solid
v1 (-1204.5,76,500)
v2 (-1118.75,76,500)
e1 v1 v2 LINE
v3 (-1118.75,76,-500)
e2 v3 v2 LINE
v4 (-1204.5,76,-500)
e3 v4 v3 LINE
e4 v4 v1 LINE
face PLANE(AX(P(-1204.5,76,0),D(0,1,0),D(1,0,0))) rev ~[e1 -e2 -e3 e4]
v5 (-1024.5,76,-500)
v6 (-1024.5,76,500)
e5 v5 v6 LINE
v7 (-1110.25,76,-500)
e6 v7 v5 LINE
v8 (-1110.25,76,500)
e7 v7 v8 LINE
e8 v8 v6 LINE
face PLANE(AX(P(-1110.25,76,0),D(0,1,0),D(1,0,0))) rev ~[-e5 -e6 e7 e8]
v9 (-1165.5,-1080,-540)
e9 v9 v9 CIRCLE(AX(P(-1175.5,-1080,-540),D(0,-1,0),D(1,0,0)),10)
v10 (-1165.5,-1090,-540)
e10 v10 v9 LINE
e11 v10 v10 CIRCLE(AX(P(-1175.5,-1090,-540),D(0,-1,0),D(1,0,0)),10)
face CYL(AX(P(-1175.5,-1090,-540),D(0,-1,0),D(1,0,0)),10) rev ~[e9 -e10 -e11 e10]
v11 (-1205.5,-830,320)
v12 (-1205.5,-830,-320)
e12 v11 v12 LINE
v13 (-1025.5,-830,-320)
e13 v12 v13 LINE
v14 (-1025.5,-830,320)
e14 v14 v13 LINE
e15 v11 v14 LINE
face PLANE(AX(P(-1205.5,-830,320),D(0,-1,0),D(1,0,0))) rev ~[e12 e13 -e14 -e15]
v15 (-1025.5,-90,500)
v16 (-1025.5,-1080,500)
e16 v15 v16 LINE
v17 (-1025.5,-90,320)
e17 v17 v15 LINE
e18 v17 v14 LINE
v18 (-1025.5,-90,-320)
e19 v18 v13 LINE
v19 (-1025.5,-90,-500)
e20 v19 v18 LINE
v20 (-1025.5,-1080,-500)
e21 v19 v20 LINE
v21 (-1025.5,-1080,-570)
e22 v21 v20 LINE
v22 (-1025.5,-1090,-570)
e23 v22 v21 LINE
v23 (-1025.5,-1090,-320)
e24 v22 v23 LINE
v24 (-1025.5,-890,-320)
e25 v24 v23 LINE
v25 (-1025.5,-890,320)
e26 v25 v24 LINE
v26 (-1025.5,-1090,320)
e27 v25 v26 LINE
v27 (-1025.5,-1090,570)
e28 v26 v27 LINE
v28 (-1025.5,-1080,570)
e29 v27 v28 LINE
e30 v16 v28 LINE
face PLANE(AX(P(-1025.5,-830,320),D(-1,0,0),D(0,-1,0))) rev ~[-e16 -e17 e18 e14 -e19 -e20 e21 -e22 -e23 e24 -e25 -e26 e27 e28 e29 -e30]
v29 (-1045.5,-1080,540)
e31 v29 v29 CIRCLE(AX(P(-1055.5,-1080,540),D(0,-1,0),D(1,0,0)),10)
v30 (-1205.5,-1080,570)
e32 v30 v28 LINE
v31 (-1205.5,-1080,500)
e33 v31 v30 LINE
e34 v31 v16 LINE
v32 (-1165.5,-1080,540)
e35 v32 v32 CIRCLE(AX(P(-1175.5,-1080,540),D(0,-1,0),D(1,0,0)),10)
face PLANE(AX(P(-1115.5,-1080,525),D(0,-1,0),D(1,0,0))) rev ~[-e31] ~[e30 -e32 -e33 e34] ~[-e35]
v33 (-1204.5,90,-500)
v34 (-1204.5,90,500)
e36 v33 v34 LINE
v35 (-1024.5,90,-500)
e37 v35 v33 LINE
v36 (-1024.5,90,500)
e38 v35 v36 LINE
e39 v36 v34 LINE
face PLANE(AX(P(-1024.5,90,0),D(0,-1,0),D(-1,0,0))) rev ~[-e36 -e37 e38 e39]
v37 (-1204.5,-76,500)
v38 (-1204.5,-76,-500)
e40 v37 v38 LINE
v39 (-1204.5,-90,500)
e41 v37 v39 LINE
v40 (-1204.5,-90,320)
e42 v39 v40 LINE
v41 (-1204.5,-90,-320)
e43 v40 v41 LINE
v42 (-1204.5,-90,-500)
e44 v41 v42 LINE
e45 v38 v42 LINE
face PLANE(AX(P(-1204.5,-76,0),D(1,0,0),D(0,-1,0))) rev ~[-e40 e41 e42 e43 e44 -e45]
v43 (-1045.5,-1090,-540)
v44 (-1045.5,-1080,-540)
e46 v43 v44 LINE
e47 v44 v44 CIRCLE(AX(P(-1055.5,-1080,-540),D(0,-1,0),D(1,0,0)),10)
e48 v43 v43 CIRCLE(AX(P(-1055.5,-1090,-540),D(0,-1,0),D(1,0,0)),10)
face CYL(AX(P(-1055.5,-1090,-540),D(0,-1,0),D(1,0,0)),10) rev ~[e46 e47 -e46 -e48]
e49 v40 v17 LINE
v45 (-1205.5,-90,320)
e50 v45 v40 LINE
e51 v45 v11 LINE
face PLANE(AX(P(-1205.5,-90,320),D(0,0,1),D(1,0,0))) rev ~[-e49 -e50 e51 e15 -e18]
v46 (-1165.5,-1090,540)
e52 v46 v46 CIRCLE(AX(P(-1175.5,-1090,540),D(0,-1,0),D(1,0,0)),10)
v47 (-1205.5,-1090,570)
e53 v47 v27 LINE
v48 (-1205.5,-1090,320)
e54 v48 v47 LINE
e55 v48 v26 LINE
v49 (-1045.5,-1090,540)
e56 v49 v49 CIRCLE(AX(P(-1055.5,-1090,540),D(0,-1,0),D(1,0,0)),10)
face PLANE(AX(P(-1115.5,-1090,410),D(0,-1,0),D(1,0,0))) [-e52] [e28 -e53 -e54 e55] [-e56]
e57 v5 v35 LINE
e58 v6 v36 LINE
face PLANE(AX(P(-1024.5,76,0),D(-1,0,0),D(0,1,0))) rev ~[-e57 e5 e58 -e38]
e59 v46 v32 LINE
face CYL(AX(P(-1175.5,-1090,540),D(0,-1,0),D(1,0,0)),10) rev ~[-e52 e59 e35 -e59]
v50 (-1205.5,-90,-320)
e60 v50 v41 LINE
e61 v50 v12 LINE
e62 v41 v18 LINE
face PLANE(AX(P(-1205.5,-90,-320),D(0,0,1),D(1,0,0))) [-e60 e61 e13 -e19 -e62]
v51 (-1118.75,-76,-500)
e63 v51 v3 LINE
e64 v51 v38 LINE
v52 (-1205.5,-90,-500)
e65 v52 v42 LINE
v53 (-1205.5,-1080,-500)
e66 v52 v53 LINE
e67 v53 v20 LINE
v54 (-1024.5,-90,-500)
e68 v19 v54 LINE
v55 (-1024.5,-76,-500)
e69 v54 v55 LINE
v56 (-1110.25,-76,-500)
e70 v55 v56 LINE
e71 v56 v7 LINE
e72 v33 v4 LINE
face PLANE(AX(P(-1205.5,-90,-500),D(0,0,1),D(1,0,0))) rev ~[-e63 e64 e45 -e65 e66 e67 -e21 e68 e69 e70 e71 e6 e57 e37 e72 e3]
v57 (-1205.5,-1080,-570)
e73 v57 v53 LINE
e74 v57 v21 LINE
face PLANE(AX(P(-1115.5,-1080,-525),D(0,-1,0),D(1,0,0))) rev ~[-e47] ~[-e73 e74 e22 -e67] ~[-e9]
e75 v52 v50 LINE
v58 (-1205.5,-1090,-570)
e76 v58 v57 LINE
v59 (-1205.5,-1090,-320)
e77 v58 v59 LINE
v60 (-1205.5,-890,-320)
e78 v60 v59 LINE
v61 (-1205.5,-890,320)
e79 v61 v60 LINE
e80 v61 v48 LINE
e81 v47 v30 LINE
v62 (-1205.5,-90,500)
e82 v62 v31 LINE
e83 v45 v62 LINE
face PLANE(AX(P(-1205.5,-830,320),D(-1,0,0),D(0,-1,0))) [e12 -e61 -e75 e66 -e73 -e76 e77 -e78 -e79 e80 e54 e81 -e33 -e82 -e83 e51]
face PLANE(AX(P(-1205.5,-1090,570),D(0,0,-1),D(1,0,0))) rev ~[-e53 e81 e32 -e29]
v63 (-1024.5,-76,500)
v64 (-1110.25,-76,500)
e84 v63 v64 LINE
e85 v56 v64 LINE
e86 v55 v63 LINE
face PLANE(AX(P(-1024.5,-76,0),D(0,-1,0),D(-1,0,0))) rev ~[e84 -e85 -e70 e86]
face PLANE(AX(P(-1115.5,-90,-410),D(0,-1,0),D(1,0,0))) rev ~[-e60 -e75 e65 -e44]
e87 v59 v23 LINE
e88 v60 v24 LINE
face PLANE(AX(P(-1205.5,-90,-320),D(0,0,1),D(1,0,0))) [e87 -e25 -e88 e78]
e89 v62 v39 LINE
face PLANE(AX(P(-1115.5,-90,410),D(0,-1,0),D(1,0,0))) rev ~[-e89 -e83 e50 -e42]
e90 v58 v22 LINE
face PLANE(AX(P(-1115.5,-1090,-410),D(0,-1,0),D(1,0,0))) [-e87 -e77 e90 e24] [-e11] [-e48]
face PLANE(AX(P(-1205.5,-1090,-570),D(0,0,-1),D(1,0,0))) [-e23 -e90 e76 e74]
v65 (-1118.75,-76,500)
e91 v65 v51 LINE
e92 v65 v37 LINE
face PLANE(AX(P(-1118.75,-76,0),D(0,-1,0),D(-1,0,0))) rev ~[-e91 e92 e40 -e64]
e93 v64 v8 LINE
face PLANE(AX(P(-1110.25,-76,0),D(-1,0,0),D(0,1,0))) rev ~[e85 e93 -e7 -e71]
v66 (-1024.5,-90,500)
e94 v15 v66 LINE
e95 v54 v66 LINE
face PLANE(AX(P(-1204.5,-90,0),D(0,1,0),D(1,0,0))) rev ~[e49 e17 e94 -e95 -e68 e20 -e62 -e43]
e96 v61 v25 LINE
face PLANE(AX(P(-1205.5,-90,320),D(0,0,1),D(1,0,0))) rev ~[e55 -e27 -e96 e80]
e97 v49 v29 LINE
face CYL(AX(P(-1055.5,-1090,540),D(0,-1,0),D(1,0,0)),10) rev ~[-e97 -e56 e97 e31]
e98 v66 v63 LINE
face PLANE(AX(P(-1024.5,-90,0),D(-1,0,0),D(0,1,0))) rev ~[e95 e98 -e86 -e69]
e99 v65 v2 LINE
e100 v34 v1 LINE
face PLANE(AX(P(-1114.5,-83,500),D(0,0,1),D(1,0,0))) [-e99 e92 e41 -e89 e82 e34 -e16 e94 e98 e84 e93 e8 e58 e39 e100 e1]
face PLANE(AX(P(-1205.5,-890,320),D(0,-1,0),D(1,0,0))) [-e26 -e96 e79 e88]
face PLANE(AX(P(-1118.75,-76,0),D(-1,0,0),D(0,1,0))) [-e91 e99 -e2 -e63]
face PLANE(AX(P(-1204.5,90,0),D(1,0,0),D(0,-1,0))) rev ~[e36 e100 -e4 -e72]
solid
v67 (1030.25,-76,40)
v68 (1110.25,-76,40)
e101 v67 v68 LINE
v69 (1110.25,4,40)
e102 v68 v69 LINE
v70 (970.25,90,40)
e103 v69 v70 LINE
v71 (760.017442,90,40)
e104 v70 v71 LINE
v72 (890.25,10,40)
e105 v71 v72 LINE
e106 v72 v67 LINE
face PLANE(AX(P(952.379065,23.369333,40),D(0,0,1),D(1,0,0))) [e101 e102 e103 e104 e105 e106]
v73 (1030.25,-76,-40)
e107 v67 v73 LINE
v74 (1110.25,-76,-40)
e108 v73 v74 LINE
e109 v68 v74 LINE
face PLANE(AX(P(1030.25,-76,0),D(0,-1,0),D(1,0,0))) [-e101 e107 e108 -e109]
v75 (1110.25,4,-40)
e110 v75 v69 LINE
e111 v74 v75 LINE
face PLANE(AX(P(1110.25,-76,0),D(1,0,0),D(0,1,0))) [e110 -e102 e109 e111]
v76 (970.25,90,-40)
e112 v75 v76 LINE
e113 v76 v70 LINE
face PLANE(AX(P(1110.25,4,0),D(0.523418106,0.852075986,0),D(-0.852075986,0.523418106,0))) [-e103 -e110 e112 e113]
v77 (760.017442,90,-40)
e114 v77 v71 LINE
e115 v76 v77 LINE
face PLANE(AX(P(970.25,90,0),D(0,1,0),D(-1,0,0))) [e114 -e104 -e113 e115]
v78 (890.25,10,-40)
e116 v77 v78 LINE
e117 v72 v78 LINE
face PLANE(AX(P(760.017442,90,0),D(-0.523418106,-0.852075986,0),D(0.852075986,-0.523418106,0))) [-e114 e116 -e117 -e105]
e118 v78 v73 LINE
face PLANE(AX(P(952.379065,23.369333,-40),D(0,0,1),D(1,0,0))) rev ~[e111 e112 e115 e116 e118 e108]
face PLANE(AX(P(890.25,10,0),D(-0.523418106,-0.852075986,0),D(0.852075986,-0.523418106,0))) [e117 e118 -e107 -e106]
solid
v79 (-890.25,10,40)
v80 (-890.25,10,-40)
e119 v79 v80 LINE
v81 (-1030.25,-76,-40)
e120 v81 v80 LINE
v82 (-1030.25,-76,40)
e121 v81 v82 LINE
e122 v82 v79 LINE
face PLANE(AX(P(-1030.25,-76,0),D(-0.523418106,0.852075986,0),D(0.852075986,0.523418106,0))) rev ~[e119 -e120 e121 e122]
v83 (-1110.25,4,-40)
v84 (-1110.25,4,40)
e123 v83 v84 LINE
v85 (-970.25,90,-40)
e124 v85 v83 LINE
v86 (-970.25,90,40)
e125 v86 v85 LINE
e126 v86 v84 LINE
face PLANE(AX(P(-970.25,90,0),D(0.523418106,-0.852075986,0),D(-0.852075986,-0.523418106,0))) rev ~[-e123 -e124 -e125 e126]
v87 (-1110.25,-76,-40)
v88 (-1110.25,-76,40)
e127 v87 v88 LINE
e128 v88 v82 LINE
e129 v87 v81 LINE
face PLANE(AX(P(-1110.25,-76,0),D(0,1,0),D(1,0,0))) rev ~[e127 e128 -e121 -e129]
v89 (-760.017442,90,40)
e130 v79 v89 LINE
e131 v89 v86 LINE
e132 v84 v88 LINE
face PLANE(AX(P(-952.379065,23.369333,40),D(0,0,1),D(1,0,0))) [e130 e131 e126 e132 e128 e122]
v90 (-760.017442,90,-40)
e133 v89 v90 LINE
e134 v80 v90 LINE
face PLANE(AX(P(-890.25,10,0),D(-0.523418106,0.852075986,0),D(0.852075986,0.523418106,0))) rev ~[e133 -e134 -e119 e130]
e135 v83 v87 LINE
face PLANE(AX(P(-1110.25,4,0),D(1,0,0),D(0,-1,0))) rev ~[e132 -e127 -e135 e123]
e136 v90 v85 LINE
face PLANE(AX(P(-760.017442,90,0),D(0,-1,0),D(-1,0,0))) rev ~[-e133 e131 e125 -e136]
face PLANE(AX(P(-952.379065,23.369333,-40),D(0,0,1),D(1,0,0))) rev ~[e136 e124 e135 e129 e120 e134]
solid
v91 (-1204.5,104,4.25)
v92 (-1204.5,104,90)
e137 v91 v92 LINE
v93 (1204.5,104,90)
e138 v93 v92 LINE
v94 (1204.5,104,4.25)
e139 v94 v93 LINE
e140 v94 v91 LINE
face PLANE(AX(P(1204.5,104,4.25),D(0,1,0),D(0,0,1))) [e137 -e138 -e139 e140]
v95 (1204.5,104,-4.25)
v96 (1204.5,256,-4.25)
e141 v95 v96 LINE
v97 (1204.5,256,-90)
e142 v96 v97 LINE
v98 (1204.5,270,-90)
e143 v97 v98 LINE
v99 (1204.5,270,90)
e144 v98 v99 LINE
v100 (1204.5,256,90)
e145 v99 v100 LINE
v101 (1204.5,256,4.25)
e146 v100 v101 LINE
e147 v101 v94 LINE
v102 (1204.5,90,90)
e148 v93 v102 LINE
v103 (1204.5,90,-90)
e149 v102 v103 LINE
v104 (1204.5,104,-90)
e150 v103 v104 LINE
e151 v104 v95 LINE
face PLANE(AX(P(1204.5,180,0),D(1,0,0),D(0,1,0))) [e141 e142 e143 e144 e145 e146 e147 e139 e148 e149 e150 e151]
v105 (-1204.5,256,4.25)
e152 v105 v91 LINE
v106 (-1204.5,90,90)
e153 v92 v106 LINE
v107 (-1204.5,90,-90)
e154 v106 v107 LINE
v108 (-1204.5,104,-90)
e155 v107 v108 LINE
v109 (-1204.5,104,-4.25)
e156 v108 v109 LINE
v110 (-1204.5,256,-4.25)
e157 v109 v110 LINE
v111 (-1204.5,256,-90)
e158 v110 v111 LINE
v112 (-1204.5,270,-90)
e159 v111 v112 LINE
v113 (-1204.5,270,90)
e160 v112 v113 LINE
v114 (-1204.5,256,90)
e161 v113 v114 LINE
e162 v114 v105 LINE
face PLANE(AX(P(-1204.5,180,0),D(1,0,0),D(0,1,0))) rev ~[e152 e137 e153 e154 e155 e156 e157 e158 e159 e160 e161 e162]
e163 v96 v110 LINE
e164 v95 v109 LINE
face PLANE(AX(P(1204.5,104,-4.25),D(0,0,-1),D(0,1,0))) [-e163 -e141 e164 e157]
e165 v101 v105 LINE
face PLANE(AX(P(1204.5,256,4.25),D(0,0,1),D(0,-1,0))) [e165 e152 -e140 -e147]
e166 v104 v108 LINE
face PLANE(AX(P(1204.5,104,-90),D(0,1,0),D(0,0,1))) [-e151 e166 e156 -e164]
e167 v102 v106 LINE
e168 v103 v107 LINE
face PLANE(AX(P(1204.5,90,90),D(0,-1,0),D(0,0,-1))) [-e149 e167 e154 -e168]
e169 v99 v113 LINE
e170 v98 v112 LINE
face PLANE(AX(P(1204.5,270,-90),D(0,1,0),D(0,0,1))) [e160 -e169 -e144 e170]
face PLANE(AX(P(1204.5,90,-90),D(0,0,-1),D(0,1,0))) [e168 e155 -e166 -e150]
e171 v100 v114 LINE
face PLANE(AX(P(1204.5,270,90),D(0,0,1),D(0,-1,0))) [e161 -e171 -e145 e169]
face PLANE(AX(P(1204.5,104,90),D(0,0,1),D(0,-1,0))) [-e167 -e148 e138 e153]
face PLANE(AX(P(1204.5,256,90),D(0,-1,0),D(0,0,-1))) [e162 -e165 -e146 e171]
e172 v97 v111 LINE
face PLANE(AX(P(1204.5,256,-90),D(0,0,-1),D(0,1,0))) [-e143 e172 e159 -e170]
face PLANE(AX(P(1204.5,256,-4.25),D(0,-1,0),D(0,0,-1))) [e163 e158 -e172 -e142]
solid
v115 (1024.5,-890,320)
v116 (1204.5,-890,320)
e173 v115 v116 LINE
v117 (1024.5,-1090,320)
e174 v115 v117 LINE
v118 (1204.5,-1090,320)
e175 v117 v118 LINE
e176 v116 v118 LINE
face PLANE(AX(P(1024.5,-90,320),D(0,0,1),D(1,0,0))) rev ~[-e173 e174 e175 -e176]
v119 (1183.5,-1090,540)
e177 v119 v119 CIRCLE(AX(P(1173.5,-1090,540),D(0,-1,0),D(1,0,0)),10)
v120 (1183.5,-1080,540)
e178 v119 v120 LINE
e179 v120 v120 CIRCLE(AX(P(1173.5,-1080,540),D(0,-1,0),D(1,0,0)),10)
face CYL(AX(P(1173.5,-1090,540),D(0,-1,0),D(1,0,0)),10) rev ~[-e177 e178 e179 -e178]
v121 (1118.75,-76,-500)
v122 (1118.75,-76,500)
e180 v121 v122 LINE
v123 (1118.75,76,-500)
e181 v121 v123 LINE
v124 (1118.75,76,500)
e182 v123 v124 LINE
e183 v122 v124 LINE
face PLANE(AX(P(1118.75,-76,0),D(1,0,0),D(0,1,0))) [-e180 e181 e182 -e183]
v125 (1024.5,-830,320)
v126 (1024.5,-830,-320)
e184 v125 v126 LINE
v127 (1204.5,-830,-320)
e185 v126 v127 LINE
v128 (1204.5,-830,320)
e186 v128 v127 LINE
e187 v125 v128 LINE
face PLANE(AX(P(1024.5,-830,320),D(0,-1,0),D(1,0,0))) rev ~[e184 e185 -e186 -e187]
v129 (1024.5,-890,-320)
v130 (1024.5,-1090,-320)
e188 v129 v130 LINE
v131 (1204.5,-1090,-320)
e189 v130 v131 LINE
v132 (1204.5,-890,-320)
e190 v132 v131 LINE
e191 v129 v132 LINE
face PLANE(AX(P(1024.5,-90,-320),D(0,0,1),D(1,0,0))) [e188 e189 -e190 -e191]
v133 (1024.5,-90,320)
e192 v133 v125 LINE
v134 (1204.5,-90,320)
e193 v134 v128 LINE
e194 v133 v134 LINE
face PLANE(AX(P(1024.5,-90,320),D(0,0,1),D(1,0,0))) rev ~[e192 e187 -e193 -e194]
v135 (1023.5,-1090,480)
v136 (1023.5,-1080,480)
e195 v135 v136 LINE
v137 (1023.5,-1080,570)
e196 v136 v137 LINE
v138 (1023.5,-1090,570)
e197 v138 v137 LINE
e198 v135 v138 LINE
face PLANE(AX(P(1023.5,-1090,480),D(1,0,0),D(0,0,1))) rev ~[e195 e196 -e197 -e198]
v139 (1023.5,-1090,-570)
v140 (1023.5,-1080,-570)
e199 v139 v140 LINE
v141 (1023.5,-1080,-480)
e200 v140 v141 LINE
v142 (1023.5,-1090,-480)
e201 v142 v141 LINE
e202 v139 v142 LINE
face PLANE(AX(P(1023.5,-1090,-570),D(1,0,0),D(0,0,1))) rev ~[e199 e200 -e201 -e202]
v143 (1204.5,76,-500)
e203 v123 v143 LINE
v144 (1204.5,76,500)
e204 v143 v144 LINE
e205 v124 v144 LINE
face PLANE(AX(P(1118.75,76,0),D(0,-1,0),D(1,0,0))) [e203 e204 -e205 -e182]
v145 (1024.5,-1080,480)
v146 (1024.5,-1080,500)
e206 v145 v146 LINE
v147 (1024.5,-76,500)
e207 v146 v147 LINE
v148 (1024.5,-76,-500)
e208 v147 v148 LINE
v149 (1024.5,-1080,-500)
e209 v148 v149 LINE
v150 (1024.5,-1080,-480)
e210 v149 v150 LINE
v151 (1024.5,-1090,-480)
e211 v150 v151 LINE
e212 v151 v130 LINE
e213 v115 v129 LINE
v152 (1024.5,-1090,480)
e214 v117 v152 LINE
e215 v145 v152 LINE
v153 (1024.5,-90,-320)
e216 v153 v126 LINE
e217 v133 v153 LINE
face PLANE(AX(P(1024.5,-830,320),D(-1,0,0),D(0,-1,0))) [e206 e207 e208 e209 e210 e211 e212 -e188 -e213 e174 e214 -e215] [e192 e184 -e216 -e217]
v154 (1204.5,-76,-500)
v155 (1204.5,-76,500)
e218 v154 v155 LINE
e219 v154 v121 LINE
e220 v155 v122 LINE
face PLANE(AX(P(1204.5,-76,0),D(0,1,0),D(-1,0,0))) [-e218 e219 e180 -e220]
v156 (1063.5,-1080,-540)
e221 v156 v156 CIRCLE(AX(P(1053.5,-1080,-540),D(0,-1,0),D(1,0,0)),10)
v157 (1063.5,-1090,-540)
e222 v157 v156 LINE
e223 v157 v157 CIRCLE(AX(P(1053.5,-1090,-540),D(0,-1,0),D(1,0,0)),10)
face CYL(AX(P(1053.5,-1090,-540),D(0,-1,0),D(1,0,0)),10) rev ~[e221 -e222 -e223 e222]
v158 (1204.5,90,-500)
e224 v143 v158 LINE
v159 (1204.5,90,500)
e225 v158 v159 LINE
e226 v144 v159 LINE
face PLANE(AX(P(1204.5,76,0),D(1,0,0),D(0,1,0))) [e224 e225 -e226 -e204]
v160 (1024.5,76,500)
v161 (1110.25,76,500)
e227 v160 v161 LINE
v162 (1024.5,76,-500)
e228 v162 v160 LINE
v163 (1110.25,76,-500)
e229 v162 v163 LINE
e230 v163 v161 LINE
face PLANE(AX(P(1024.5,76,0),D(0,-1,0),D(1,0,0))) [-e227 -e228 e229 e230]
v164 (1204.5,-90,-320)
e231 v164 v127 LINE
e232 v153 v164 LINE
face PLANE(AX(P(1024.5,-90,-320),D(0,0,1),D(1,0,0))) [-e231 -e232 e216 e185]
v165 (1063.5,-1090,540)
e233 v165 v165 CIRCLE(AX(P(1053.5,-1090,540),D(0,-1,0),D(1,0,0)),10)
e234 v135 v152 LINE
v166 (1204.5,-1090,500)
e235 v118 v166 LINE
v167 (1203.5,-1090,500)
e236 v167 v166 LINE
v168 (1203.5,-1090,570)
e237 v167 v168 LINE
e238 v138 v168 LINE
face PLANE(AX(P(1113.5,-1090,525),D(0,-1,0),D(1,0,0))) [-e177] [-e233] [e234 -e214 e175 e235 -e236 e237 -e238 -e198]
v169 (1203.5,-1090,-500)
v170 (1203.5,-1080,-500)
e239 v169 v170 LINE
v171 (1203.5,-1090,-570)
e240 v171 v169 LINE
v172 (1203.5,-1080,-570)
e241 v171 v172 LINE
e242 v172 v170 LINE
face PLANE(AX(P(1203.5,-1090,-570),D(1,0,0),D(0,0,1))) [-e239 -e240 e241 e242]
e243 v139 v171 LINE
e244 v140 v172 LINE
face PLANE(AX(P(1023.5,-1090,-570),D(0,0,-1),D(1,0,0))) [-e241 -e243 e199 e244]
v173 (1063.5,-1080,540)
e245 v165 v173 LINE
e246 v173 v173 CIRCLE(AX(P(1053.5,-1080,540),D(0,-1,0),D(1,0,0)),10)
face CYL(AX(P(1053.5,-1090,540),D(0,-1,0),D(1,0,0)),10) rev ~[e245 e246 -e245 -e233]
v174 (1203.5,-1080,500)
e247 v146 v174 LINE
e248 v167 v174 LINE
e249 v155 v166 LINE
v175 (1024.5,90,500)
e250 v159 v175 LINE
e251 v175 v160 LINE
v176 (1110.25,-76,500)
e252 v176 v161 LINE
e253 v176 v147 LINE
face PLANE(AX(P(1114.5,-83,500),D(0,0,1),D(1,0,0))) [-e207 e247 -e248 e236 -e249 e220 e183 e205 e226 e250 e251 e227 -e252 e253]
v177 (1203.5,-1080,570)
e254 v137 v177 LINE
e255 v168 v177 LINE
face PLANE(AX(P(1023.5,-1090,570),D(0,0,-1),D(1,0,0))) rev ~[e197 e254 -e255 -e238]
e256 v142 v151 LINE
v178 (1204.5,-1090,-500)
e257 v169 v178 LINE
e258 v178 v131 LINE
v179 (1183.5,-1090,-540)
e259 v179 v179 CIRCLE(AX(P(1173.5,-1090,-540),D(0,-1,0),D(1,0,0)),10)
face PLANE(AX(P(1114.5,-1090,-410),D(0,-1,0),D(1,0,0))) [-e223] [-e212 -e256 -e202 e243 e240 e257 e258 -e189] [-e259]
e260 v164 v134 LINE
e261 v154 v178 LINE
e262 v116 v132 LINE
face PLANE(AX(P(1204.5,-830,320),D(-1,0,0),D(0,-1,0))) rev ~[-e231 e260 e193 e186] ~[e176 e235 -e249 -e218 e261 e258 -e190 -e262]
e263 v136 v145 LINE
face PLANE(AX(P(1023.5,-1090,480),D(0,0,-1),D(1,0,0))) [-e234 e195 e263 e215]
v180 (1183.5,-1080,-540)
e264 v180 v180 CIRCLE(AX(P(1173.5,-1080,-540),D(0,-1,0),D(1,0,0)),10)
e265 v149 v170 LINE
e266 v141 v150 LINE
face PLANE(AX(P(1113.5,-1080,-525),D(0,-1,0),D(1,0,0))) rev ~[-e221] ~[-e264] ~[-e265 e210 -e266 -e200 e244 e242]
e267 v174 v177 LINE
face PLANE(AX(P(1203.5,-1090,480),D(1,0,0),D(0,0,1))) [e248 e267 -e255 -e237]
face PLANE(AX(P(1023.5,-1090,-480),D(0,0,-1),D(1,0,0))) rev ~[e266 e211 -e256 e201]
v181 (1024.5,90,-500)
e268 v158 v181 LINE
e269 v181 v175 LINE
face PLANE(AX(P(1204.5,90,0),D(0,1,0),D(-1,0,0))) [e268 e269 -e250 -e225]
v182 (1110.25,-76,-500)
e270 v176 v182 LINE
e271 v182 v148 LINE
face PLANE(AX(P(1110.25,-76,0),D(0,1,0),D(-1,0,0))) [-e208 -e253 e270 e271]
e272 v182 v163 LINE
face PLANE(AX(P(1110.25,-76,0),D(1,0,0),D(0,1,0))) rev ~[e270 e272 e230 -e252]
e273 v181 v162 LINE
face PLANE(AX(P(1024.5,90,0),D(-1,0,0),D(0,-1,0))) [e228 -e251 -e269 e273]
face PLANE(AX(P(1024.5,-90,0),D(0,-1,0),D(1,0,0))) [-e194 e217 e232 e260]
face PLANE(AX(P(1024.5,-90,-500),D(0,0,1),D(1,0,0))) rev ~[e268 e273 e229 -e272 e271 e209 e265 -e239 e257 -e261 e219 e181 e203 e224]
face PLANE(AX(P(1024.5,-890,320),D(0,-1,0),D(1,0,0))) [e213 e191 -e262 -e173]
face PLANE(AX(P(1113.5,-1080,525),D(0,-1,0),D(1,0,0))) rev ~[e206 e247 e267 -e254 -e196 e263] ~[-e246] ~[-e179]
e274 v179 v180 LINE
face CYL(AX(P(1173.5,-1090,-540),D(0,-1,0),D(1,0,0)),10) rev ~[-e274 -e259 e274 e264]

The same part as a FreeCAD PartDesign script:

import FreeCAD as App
import Part
import Sketcher
Q = App.Units.Quantity

doc = App.newDocument("Part")
body = doc.addObject("PartDesign::Body", "Body")
body.AllowCompound = True

# Sketch on XY plane
sketch1 = body.newObject("Sketcher::SketchObject", "Sketch")
sketch1.AttachmentSupport = (doc.getObject("XY_Plane"), [""])
sketch1.MapMode = "FlatFace"
sketch1.addGeometry(Part.LineSegment(App.Vector(-1204.5, -90, 0), App.Vector(-1024.5, -90, 0)), False)
sketch1.addGeometry(Part.LineSegment(App.Vector(-1024.5, -90, 0), App.Vector(-1024.5, -76, 0)), False)
sketch1.addGeometry(Part.LineSegment(App.Vector(-1024.5, -76, 0), App.Vector(-1110.25, -76, 0)), False)
sketch1.addGeometry(Part.LineSegment(App.Vector(-1110.25, -76, 0), App.Vector(-1110.25, 76, 0)), False)
sketch1.addGeometry(Part.LineSegment(App.Vector(-1110.25, 76, 0), App.Vector(-1024.5, 76, 0)), False)
sketch1.addGeometry(Part.LineSegment(App.Vector(-1024.5, 76, 0), App.Vector(-1024.5, 90, 0)), False)
sketch1.addGeometry(Part.LineSegment(App.Vector(-1024.5, 90, 0), App.Vector(-1204.5, 90, 0)), False)
sketch1.addGeometry(Part.LineSegment(App.Vector(-1204.5, 90, 0), App.Vector(-1204.5, 76, 0)), False)
sketch1.addGeometry(Part.LineSegment(App.Vector(-1204.5, 76, 0), App.Vector(-1118.75, 76, 0)), False)
sketch1.addGeometry(Part.LineSegment(App.Vector(-1118.75, 76, 0), App.Vector(-1118.75, -76, 0)), False)
sketch1.addGeometry(Part.LineSegment(App.Vector(-1118.75, -76, 0), App.Vector(-1204.5, -76, 0)), False)
sketch1.addGeometry(Part.LineSegment(App.Vector(-1204.5, -76, 0), App.Vector(-1204.5, -90, 0)), False)
sketch1.addGeometry(Part.LineSegment(App.Vector(1024.5, -90, 0), App.Vector(1204.5, -90, 0)), False)
sketch1.addGeometry(Part.LineSegment(App.Vector(1204.5, -90, 0), App.Vector(1204.5, -76, 0)), False)
sketch1.addGeometry(Part.LineSegment(App.Vector(1204.5, -76, 0), App.Vector(1118.75, -76, 0)), False)
sketch1.addGeometry(Part.LineSegment(App.Vector(1118.75, -76, 0), App.Vector(1118.75, 76, 0)), False)
sketch1.addGeometry(Part.LineSegment(App.Vector(1118.75, 76, 0), App.Vector(1204.5, 76, 0)), False)
sketch1.addGeometry(Part.LineSegment(App.Vector(1204.5, 76, 0), App.Vector(1204.5, 90, 0)), False)
sketch1.addGeometry(Part.LineSegment(App.Vector(1204.5, 90, 0), App.Vector(1024.5, 90, 0)), False)
sketch1.addGeometry(Part.LineSegment(App.Vector(1024.5, 90, 0), App.Vector(1024.5, 76, 0)), False)
sketch1.addGeometry(Part.LineSegment(App.Vector(1024.5, 76, 0), App.Vector(1110.25, 76, 0)), False)
sketch1.addGeometry(Part.LineSegment(App.Vector(1110.25, 76, 0), App.Vector(1110.25, -76, 0)), False)
sketch1.addGeometry(Part.LineSegment(App.Vector(1110.25, -76, 0), App.Vector(1024.5, -76, 0)), False)
sketch1.addGeometry(Part.LineSegment(App.Vector(1024.5, -76, 0), App.Vector(1024.5, -90, 0)), False)
sketch1.addConstraint(Sketcher.Constraint("Coincident", 0, 2, 1, 1))
sketch1.addConstraint(Sketcher.Constraint("Coincident", 1, 2, 2, 1))
sketch1.addConstraint(Sketcher.Constraint("Coincident", 2, 2, 3, 1))
sketch1.addConstraint(Sketcher.Constraint("Coincident", 3, 2, 4, 1))
sketch1.addConstraint(Sketcher.Constraint("Coincident", 4, 2, 5, 1))
sketch1.addConstraint(Sketcher.Constraint("Coincident", 5, 2, 6, 1))
sketch1.addConstraint(Sketcher.Constraint("Coincident", 6, 2, 7, 1))
sketch1.addConstraint(Sketcher.Constraint("Coincident", 7, 2, 8, 1))
sketch1.addConstraint(Sketcher.Constraint("Coincident", 8, 2, 9, 1))
sketch1.addConstraint(Sketcher.Constraint("Coincident", 9, 2, 10, 1))
sketch1.addConstraint(Sketcher.Constraint("Coincident", 10, 2, 11, 1))
sketch1.addConstraint(Sketcher.Constraint("Coincident", 11, 2, 0, 1))
sketch1.addConstraint(Sketcher.Constraint("Coincident", 12, 2, 13, 1))
sketch1.addConstraint(Sketcher.Constraint("Coincident", 13, 2, 14, 1))
sketch1.addConstraint(Sketcher.Constraint("Coincident", 14, 2, 15, 1))
sketch1.addConstraint(Sketcher.Constraint("Coincident", 15, 2, 16, 1))
sketch1.addConstraint(Sketcher.Constraint("Coincident", 16, 2, 17, 1))
sketch1.addConstraint(Sketcher.Constraint("Coincident", 17, 2, 18, 1))
sketch1.addConstraint(Sketcher.Constraint("Coincident", 18, 2, 19, 1))
sketch1.addConstraint(Sketcher.Constraint("Coincident", 19, 2, 20, 1))
sketch1.addConstraint(Sketcher.Constraint("Coincident", 20, 2, 21, 1))
sketch1.addConstraint(Sketcher.Constraint("Coincident", 21, 2, 22, 1))
sketch1.addConstraint(Sketcher.Constraint("Coincident", 22, 2, 23, 1))
sketch1.addConstraint(Sketcher.Constraint("Coincident", 23, 2, 12, 1))
sketch1.addConstraint(Sketcher.Constraint("Horizontal", 0))
sketch1.addConstraint(Sketcher.Constraint("Vertical", 1))
sketch1.addConstraint(Sketcher.Constraint("Horizontal", 2))
sketch1.addConstraint(Sketcher.Constraint("Vertical", 3))
sketch1.addConstraint(Sketcher.Constraint("Horizontal", 4))
sketch1.addConstraint(Sketcher.Constraint("Vertical", 5))
sketch1.addConstraint(Sketcher.Constraint("Horizontal", 6))
sketch1.addConstraint(Sketcher.Constraint("Vertical", 7))
sketch1.addConstraint(Sketcher.Constraint("Horizontal", 8))
sketch1.addConstraint(Sketcher.Constraint("Vertical", 9))
sketch1.addConstraint(Sketcher.Constraint("Horizontal", 10))
sketch1.addConstraint(Sketcher.Constraint("Vertical", 11))
sketch1.addConstraint(Sketcher.Constraint("Horizontal", 12))
sketch1.addConstraint(Sketcher.Constraint("Vertical", 13))
sketch1.addConstraint(Sketcher.Constraint("Horizontal", 14))
sketch1.addConstraint(Sketcher.Constraint("Vertical", 15))
sketch1.addConstraint(Sketcher.Constraint("Horizontal", 16))
sketch1.addConstraint(Sketcher.Constraint("Vertical", 17))
sketch1.addConstraint(Sketcher.Constraint("Horizontal", 18))
sketch1.addConstraint(Sketcher.Constraint("Vertical", 19))
sketch1.addConstraint(Sketcher.Constraint("Horizontal", 20))
sketch1.addConstraint(Sketcher.Constraint("Vertical", 21))
sketch1.addConstraint(Sketcher.Constraint("Horizontal", 22))
sketch1.addConstraint(Sketcher.Constraint("Vertical", 23))
sketch1.addConstraint(Sketcher.Constraint("Symmetric", 6, 2, 12, 2, -1, 1))
sketch1.addConstraint(Sketcher.Constraint("Symmetric", 8, 2, 14, 2, -1, 1))
sketch1.addConstraint(Sketcher.Constraint("Symmetric", 10, 2, 16, 2, -1, 1))
sketch1.addConstraint(Sketcher.Constraint("Symmetric", 0, 2, 18, 2, -1, 1))
sketch1.addConstraint(Sketcher.Constraint("Symmetric", 2, 2, 20, 2, -1, 1))
sketch1.addConstraint(Sketcher.Constraint("Symmetric", 4, 2, 22, 2, -1, 1))
sketch1.addConstraint(Sketcher.Constraint("Symmetric", 11, 2, 12, 2, -2))
sketch1.addConstraint(Sketcher.Constraint("Symmetric", 4, 2, 19, 2, -2))
sketch1.addConstraint(Sketcher.Constraint("Horizontal", 4, 2, 7, 2))
sketch1.addConstraint(Sketcher.Constraint("Horizontal", 2, 2, 9, 2))
sketch1.addConstraint(Sketcher.Constraint("Equal", 4, 8))
sketch1.addConstraint(Sketcher.Constraint("DistanceX", 0, 1, 0, 2, Q("180 mm")))
sketch1.addConstraint(Sketcher.Constraint("DistanceY", 1, 1, 1, 2, Q("14 mm")))
sketch1.addConstraint(Sketcher.Constraint("DistanceY", 3, 1, 3, 2, Q("152 mm")))
sketch1.addConstraint(Sketcher.Constraint("DistanceX", 0, 2, 12, 2, Q("2229 mm")))
sketch1.addConstraint(Sketcher.Constraint("DistanceX", 2, 2, 2, 1, Q("85.75 mm")))
pad1 = body.newObject("PartDesign::Pad", "Pad")
pad1.Profile = sketch1
pad1.Length = 1000
pad1.Midplane = True

# Sketch on XZ plane
sketch2 = body.newObject("Sketcher::SketchObject", "Sketch001")
sketch2.AttachmentSupport = (doc.getObject("XZ_Plane"), [""])
sketch2.MapMode = "FlatFace"
sketch2.AttachmentOffset = App.Placement(App.Vector(0, 0, 90), App.Rotation())
sketch2.addGeometry(Part.LineSegment(App.Vector(1024.5, -320, 0), App.Vector(1024.5, -500, 0)), False)
sketch2.addGeometry(Part.LineSegment(App.Vector(1024.5, -500, 0), App.Vector(1204.5, -500, 0)), False)
sketch2.addGeometry(Part.LineSegment(App.Vector(1204.5, -500, 0), App.Vector(1204.5, -320, 0)), False)
sketch2.addGeometry(Part.LineSegment(App.Vector(1204.5, -320, 0), App.Vector(1024.5, -320, 0)), False)
sketch2.addGeometry(Part.LineSegment(App.Vector(-1205.5, -320, 0), App.Vector(-1205.5, -500, 0)), False)
sketch2.addGeometry(Part.LineSegment(App.Vector(-1205.5, -500, 0), App.Vector(-1025.5, -500, 0)), False)
sketch2.addGeometry(Part.LineSegment(App.Vector(-1025.5, -500, 0), App.Vector(-1025.5, -320, 0)), False)
sketch2.addGeometry(Part.LineSegment(App.Vector(-1025.5, -320, 0), App.Vector(-1205.5, -320, 0)), False)
sketch2.addGeometry(Part.LineSegment(App.Vector(-1205.5, 500, 0), App.Vector(-1205.5, 320, 0)), False)
sketch2.addGeometry(Part.LineSegment(App.Vector(-1205.5, 320, 0), App.Vector(-1025.5, 320, 0)), False)
sketch2.addGeometry(Part.LineSegment(App.Vector(-1025.5, 320, 0), App.Vector(-1025.5, 500, 0)), False)
sketch2.addGeometry(Part.LineSegment(App.Vector(-1025.5, 500, 0), App.Vector(-1205.5, 500, 0)), False)
sketch2.addGeometry(Part.LineSegment(App.Vector(1024.5, 500, 0), App.Vector(1024.5, 320, 0)), False)
sketch2.addGeometry(Part.LineSegment(App.Vector(1024.5, 320, 0), App.Vector(1204.5, 320, 0)), False)
sketch2.addGeometry(Part.LineSegment(App.Vector(1204.5, 320, 0), App.Vector(1204.5, 500, 0)), False)
sketch2.addGeometry(Part.LineSegment(App.Vector(1204.5, 500, 0), App.Vector(1024.5, 500, 0)), False)
sketch2.addConstraint(Sketcher.Constraint("Coincident", 0, 2, 1, 1))
sketch2.addConstraint(Sketcher.Constraint("Coincident", 1, 2, 2, 1))
sketch2.addConstraint(Sketcher.Constraint("Coincident", 2, 2, 3, 1))
sketch2.addConstraint(Sketcher.Constraint("Coincident", 3, 2, 0, 1))
sketch2.addConstraint(Sketcher.Constraint("Coincident", 4, 2, 5, 1))
sketch2.addConstraint(Sketcher.Constraint("Coincident", 5, 2, 6, 1))
sketch2.addConstraint(Sketcher.Constraint("Coincident", 6, 2, 7, 1))
sketch2.addConstraint(Sketcher.Constraint("Coincident", 7, 2, 4, 1))
sketch2.addConstraint(Sketcher.Constraint("Coincident", 8, 2, 9, 1))
sketch2.addConstraint(Sketcher.Constraint("Coincident", 9, 2, 10, 1))
sketch2.addConstraint(Sketcher.Constraint("Coincident", 10, 2, 11, 1))
sketch2.addConstraint(Sketcher.Constraint("Coincident", 11, 2, 8, 1))
sketch2.addConstraint(Sketcher.Constraint("Coincident", 12, 2, 13, 1))
sketch2.addConstraint(Sketcher.Constraint("Coincident", 13, 2, 14, 1))
sketch2.addConstraint(Sketcher.Constraint("Coincident", 14, 2, 15, 1))
sketch2.addConstraint(Sketcher.Constraint("Coincident", 15, 2, 12, 1))
sketch2.addConstraint(Sketcher.Constraint("Vertical", 0))
sketch2.addConstraint(Sketcher.Constraint("Horizontal", 1))
sketch2.addConstraint(Sketcher.Constraint("Vertical", 2))
sketch2.addConstraint(Sketcher.Constraint("Horizontal", 3))
sketch2.addConstraint(Sketcher.Constraint("Vertical", 4))
sketch2.addConstraint(Sketcher.Constraint("Horizontal", 5))
sketch2.addConstraint(Sketcher.Constraint("Vertical", 6))
sketch2.addConstraint(Sketcher.Constraint("Horizontal", 7))
sketch2.addConstraint(Sketcher.Constraint("Vertical", 8))
sketch2.addConstraint(Sketcher.Constraint("Horizontal", 9))
sketch2.addConstraint(Sketcher.Constraint("Vertical", 10))
sketch2.addConstraint(Sketcher.Constraint("Horizontal", 11))
sketch2.addConstraint(Sketcher.Constraint("Vertical", 12))
sketch2.addConstraint(Sketcher.Constraint("Horizontal", 13))
sketch2.addConstraint(Sketcher.Constraint("Vertical", 14))
sketch2.addConstraint(Sketcher.Constraint("Horizontal", 15))
sketch2.addConstraint(Sketcher.Constraint("Symmetric", 7, 2, 8, 2, -1))
sketch2.addConstraint(Sketcher.Constraint("Symmetric", 5, 2, 10, 2, -1))
sketch2.addConstraint(Sketcher.Constraint("Symmetric", 3, 2, 12, 2, -1))
sketch2.addConstraint(Sketcher.Constraint("Symmetric", 1, 2, 14, 2, -1))
sketch2.addConstraint(Sketcher.Constraint("Horizontal", 1, 2, 4, 2))
sketch2.addConstraint(Sketcher.Constraint("Horizontal", 3, 2, 6, 2))
sketch2.addConstraint(Sketcher.Constraint("Equal", 3, 5))
sketch2.addConstraint(Sketcher.Constraint("Equal", 15, 0))
sketch2.addConstraint(Sketcher.Constraint("DistanceX", 1, 1, 1, 2, Q("180 mm")))
sketch2.addConstraint(Sketcher.Constraint("DistanceY", 0, 2, -1, 1, Q("500 mm")))
sketch2.addConstraint(Sketcher.Constraint("DistanceX", 4, 2, 0, 2, Q("2230 mm")))
sketch2.addConstraint(Sketcher.Constraint("DistanceX", -1, 1, 0, 2, Q("1024.5 mm")))
pad2 = body.newObject("PartDesign::Pad", "Pad001")
pad2.Profile = sketch2
pad2.Length = 1000

# Sketch on XY plane
sketch3 = body.newObject("Sketcher::SketchObject", "Sketch002")
sketch3.AttachmentSupport = (doc.getObject("XY_Plane"), [""])
sketch3.MapMode = "FlatFace"
sketch3.AttachmentOffset = App.Placement(App.Vector(0, 0, 320), App.Rotation())
sketch3.addGeometry(Part.LineSegment(App.Vector(1024.5, -890, 0), App.Vector(1024.5, -830, 0)), False)
sketch3.addGeometry(Part.LineSegment(App.Vector(1024.5, -830, 0), App.Vector(1204.5, -830, 0)), False)
sketch3.addGeometry(Part.LineSegment(App.Vector(1204.5, -830, 0), App.Vector(1204.5, -890, 0)), False)
sketch3.addGeometry(Part.LineSegment(App.Vector(1204.5, -890, 0), App.Vector(1024.5, -890, 0)), False)
sketch3.addConstraint(Sketcher.Constraint("Coincident", 0, 2, 1, 1))
sketch3.addConstraint(Sketcher.Constraint("Coincident", 1, 2, 2, 1))
sketch3.addConstraint(Sketcher.Constraint("Coincident", 2, 2, 3, 1))
sketch3.addConstraint(Sketcher.Constraint("Coincident", 3, 2, 0, 1))
sketch3.addConstraint(Sketcher.Constraint("Vertical", 0))
sketch3.addConstraint(Sketcher.Constraint("Horizontal", 1))
sketch3.addConstraint(Sketcher.Constraint("Vertical", 2))
sketch3.addConstraint(Sketcher.Constraint("Horizontal", 3))
sketch3.addConstraint(Sketcher.Constraint("DistanceX", 1, 1, 1, 2, Q("180 mm")))
sketch3.addConstraint(Sketcher.Constraint("DistanceY", 0, 1, 0, 2, Q("60 mm")))
sketch3.addConstraint(Sketcher.Constraint("DistanceY", 0, 2, -1, 1, Q("830 mm")))
sketch3.addConstraint(Sketcher.Constraint("DistanceX", -1, 1, 0, 2, Q("1024.5 mm")))
pad3 = body.newObject("PartDesign::Pad", "Pad002")
pad3.Profile = sketch3
pad3.Length = 700
pad3.Reversed = True

# Sketch on XY plane
sketch4 = body.newObject("Sketcher::SketchObject", "Sketch003")
sketch4.AttachmentSupport = (doc.getObject("XY_Plane"), [""])
sketch4.MapMode = "FlatFace"
sketch4.AttachmentOffset = App.Placement(App.Vector(0, 0, 320), App.Rotation())
sketch4.addGeometry(Part.LineSegment(App.Vector(-1205.5, -890, 0), App.Vector(-1205.5, -830, 0)), False)
sketch4.addGeometry(Part.LineSegment(App.Vector(-1205.5, -830, 0), App.Vector(-1025.5, -830, 0)), False)
sketch4.addGeometry(Part.LineSegment(App.Vector(-1025.5, -830, 0), App.Vector(-1025.5, -890, 0)), False)
sketch4.addGeometry(Part.LineSegment(App.Vector(-1025.5, -890, 0), App.Vector(-1205.5, -890, 0)), False)
sketch4.addConstraint(Sketcher.Constraint("Coincident", 0, 2, 1, 1))
sketch4.addConstraint(Sketcher.Constraint("Coincident", 1, 2, 2, 1))
sketch4.addConstraint(Sketcher.Constraint("Coincident", 2, 2, 3, 1))
sketch4.addConstraint(Sketcher.Constraint("Coincident", 3, 2, 0, 1))
sketch4.addConstraint(Sketcher.Constraint("Vertical", 0))
sketch4.addConstraint(Sketcher.Constraint("Horizontal", 1))
sketch4.addConstraint(Sketcher.Constraint("Vertical", 2))
sketch4.addConstraint(Sketcher.Constraint("Horizontal", 3))
sketch4.addConstraint(Sketcher.Constraint("DistanceX", 1, 1, 1, 2, Q("180 mm")))
sketch4.addConstraint(Sketcher.Constraint("DistanceY", 0, 1, 0, 2, Q("60 mm")))
sketch4.addConstraint(Sketcher.Constraint("DistanceY", 0, 2, -1, 1, Q("830 mm")))
sketch4.addConstraint(Sketcher.Constraint("DistanceX", 0, 2, -1, 1, Q("1205.5 mm")))
pad4 = body.newObject("PartDesign::Pad", "Pad003")
pad4.Profile = sketch4
pad4.Length = 700
pad4.Reversed = True

# Sketch on XZ plane
sketch5 = body.newObject("Sketcher::SketchObject", "Sketch004")
sketch5.AttachmentSupport = (doc.getObject("XZ_Plane"), [""])
sketch5.MapMode = "FlatFace"
sketch5.AttachmentOffset = App.Placement(App.Vector(0, 0, 1090), App.Rotation())
sketch5.addGeometry(Part.LineSegment(App.Vector(-1205.5, 570, 0), App.Vector(-1205.5, 480, 0)), False)
sketch5.addGeometry(Part.LineSegment(App.Vector(-1205.5, 480, 0), App.Vector(-1025.5, 480, 0)), False)
sketch5.addGeometry(Part.LineSegment(App.Vector(-1025.5, 480, 0), App.Vector(-1025.5, 570, 0)), False)
sketch5.addGeometry(Part.LineSegment(App.Vector(-1025.5, 570, 0), App.Vector(-1205.5, 570, 0)), False)
sketch5.addGeometry(Part.LineSegment(App.Vector(-1205.5, -480, 0), App.Vector(-1205.5, -570, 0)), False)
sketch5.addGeometry(Part.LineSegment(App.Vector(-1205.5, -570, 0), App.Vector(-1025.5, -570, 0)), False)
sketch5.addGeometry(Part.LineSegment(App.Vector(-1025.5, -570, 0), App.Vector(-1025.5, -480, 0)), False)
sketch5.addGeometry(Part.LineSegment(App.Vector(-1025.5, -480, 0), App.Vector(-1205.5, -480, 0)), False)
sketch5.addGeometry(Part.LineSegment(App.Vector(1023.5, 570, 0), App.Vector(1023.5, 480, 0)), False)
sketch5.addGeometry(Part.LineSegment(App.Vector(1023.5, 480, 0), App.Vector(1203.5, 480, 0)), False)
sketch5.addGeometry(Part.LineSegment(App.Vector(1203.5, 480, 0), App.Vector(1203.5, 570, 0)), False)
sketch5.addGeometry(Part.LineSegment(App.Vector(1203.5, 570, 0), App.Vector(1023.5, 570, 0)), False)
sketch5.addGeometry(Part.LineSegment(App.Vector(1023.5, -480, 0), App.Vector(1023.5, -570, 0)), False)
sketch5.addGeometry(Part.LineSegment(App.Vector(1023.5, -570, 0), App.Vector(1203.5, -570, 0)), False)
sketch5.addGeometry(Part.LineSegment(App.Vector(1203.5, -570, 0), App.Vector(1203.5, -480, 0)), False)
sketch5.addGeometry(Part.LineSegment(App.Vector(1203.5, -480, 0), App.Vector(1023.5, -480, 0)), False)
sketch5.addConstraint(Sketcher.Constraint("Coincident", 0, 2, 1, 1))
sketch5.addConstraint(Sketcher.Constraint("Coincident", 1, 2, 2, 1))
sketch5.addConstraint(Sketcher.Constraint("Coincident", 2, 2, 3, 1))
sketch5.addConstraint(Sketcher.Constraint("Coincident", 3, 2, 0, 1))
sketch5.addConstraint(Sketcher.Constraint("Coincident", 4, 2, 5, 1))
sketch5.addConstraint(Sketcher.Constraint("Coincident", 5, 2, 6, 1))
sketch5.addConstraint(Sketcher.Constraint("Coincident", 6, 2, 7, 1))
sketch5.addConstraint(Sketcher.Constraint("Coincident", 7, 2, 4, 1))
sketch5.addConstraint(Sketcher.Constraint("Coincident", 8, 2, 9, 1))
sketch5.addConstraint(Sketcher.Constraint("Coincident", 9, 2, 10, 1))
sketch5.addConstraint(Sketcher.Constraint("Coincident", 10, 2, 11, 1))
sketch5.addConstraint(Sketcher.Constraint("Coincident", 11, 2, 8, 1))
sketch5.addConstraint(Sketcher.Constraint("Coincident", 12, 2, 13, 1))
sketch5.addConstraint(Sketcher.Constraint("Coincident", 13, 2, 14, 1))
sketch5.addConstraint(Sketcher.Constraint("Coincident", 14, 2, 15, 1))
sketch5.addConstraint(Sketcher.Constraint("Coincident", 15, 2, 12, 1))
sketch5.addConstraint(Sketcher.Constraint("Vertical", 0))
sketch5.addConstraint(Sketcher.Constraint("Horizontal", 1))
sketch5.addConstraint(Sketcher.Constraint("Vertical", 2))
sketch5.addConstraint(Sketcher.Constraint("Horizontal", 3))
sketch5.addConstraint(Sketcher.Constraint("Vertical", 4))
sketch5.addConstraint(Sketcher.Constraint("Horizontal", 5))
sketch5.addConstraint(Sketcher.Constraint("Vertical", 6))
sketch5.addConstraint(Sketcher.Constraint("Horizontal", 7))
sketch5.addConstraint(Sketcher.Constraint("Vertical", 8))
sketch5.addConstraint(Sketcher.Constraint("Horizontal", 9))
sketch5.addConstraint(Sketcher.Constraint("Vertical", 10))
sketch5.addConstraint(Sketcher.Constraint("Horizontal", 11))
sketch5.addConstraint(Sketcher.Constraint("Vertical", 12))
sketch5.addConstraint(Sketcher.Constraint("Horizontal", 13))
sketch5.addConstraint(Sketcher.Constraint("Vertical", 14))
sketch5.addConstraint(Sketcher.Constraint("Horizontal", 15))
sketch5.addConstraint(Sketcher.Constraint("Symmetric", 3, 2, 4, 2, -1))
sketch5.addConstraint(Sketcher.Constraint("Symmetric", 1, 2, 6, 2, -1))
sketch5.addConstraint(Sketcher.Constraint("Symmetric", 11, 2, 12, 2, -1))
sketch5.addConstraint(Sketcher.Constraint("Symmetric", 9, 2, 14, 2, -1))
sketch5.addConstraint(Sketcher.Constraint("Horizontal", 1, 2, 8, 2))
sketch5.addConstraint(Sketcher.Constraint("Horizontal", 3, 2, 10, 2))
sketch5.addConstraint(Sketcher.Constraint("Equal", 7, 9))
sketch5.addConstraint(Sketcher.Constraint("DistanceX", 1, 1, 1, 2, Q("180 mm")))
sketch5.addConstraint(Sketcher.Constraint("DistanceY", 0, 2, 0, 1, Q("90 mm")))
sketch5.addConstraint(Sketcher.Constraint("DistanceY", -1, 1, 0, 2, Q("480 mm")))
sketch5.addConstraint(Sketcher.Constraint("DistanceX", 1, 2, 8, 2, Q("2049 mm")))
sketch5.addConstraint(Sketcher.Constraint("DistanceX", 0, 2, -1, 1, Q("1205.5 mm")))
pad5 = body.newObject("PartDesign::Pad", "Pad004")
pad5.Profile = sketch5
pad5.Length = 10
pad5.Reversed = True

# Sketch on XZ plane
sketch6 = body.newObject("Sketcher::SketchObject", "Sketch005")
sketch6.AttachmentSupport = (doc.getObject("XZ_Plane"), [""])
sketch6.MapMode = "FlatFace"
sketch6.AttachmentOffset = App.Placement(App.Vector(0, 0, 1090), App.Rotation())
sketch6.addGeometry(Part.Circle(App.Vector(-1175.5, 540, 0), App.Vector(0, 0, 1), 10), False)
sketch6.addGeometry(Part.Circle(App.Vector(-1055.5, 540, 0), App.Vector(0, 0, 1), 10), False)
sketch6.addGeometry(Part.Circle(App.Vector(-1055.5, -540, 0), App.Vector(0, 0, 1), 10), False)
sketch6.addGeometry(Part.Circle(App.Vector(-1175.5, -540, 0), App.Vector(0, 0, 1), 10), False)
sketch6.addGeometry(Part.Circle(App.Vector(1173.5, 540, 0), App.Vector(0, 0, 1), 10), False)
sketch6.addGeometry(Part.Circle(App.Vector(1053.5, 540, 0), App.Vector(0, 0, 1), 10), False)
sketch6.addGeometry(Part.Circle(App.Vector(1173.5, -540, 0), App.Vector(0, 0, 1), 10), False)
sketch6.addGeometry(Part.Circle(App.Vector(1053.5, -540, 0), App.Vector(0, 0, 1), 10), False)
sketch6.addConstraint(Sketcher.Constraint("Equal", 0, 1))
sketch6.addConstraint(Sketcher.Constraint("Equal", 1, 2))
sketch6.addConstraint(Sketcher.Constraint("Equal", 2, 3))
sketch6.addConstraint(Sketcher.Constraint("Equal", 3, 4))
sketch6.addConstraint(Sketcher.Constraint("Equal", 4, 5))
sketch6.addConstraint(Sketcher.Constraint("Equal", 5, 6))
sketch6.addConstraint(Sketcher.Constraint("Equal", 6, 7))
sketch6.addConstraint(Sketcher.Constraint("Symmetric", 1, 3, 2, 3, -1))
sketch6.addConstraint(Sketcher.Constraint("Symmetric", 0, 3, 3, 3, -1))
sketch6.addConstraint(Sketcher.Constraint("Symmetric", 4, 3, 6, 3, -1))
sketch6.addConstraint(Sketcher.Constraint("Symmetric", 5, 3, 7, 3, -1))
sketch6.addConstraint(Sketcher.Constraint("Horizontal", 0, 3, 1, 3))
sketch6.addConstraint(Sketcher.Constraint("Horizontal", 1, 3, 4, 3))
sketch6.addConstraint(Sketcher.Constraint("Horizontal", 4, 3, 5, 3))
sketch6.addConstraint(Sketcher.Constraint("Diameter", 0, Q("20 mm")))
sketch6.addConstraint(Sketcher.Constraint("DistanceY", -1, 1, 0, 3, Q("540 mm")))
sketch6.addConstraint(Sketcher.Constraint("DistanceX", 0, 3, 1, 3, Q("120 mm")))
sketch6.addConstraint(Sketcher.Constraint("DistanceX", 1, 3, 4, 3, Q("2229 mm")))
sketch6.addConstraint(Sketcher.Constraint("DistanceX", 5, 3, 4, 3, Q("120 mm")))
sketch6.addConstraint(Sketcher.Constraint("DistanceX", 0, 3, -1, 1, Q("1175.5 mm")))
pocket1 = body.newObject("PartDesign::Pocket", "Pocket")
pocket1.Profile = sketch6
pocket1.Length = 25
body2 = doc.addObject("PartDesign::Body", "Body001")

# Sketch on YZ plane
sketch7 = body2.newObject("Sketcher::SketchObject", "Sketch006")
sketch7.AttachmentSupport = (doc.getObject("YZ_Plane001"), [""])
sketch7.MapMode = "FlatFace"
sketch7.AttachmentOffset = App.Placement(App.Vector(0, 0, 1204.5), App.Rotation())
sketch7.addGeometry(Part.LineSegment(App.Vector(90, 90, 0), App.Vector(90, -90, 0)), False)
sketch7.addGeometry(Part.LineSegment(App.Vector(90, -90, 0), App.Vector(104, -90, 0)), False)
sketch7.addGeometry(Part.LineSegment(App.Vector(104, -90, 0), App.Vector(104, -4.25, 0)), False)
sketch7.addGeometry(Part.LineSegment(App.Vector(104, -4.25, 0), App.Vector(256, -4.25, 0)), False)
sketch7.addGeometry(Part.LineSegment(App.Vector(256, -4.25, 0), App.Vector(256, -90, 0)), False)
sketch7.addGeometry(Part.LineSegment(App.Vector(256, -90, 0), App.Vector(270, -90, 0)), False)
sketch7.addGeometry(Part.LineSegment(App.Vector(270, -90, 0), App.Vector(270, 90, 0)), False)
sketch7.addGeometry(Part.LineSegment(App.Vector(270, 90, 0), App.Vector(256, 90, 0)), False)
sketch7.addGeometry(Part.LineSegment(App.Vector(256, 90, 0), App.Vector(256, 4.25, 0)), False)
sketch7.addGeometry(Part.LineSegment(App.Vector(256, 4.25, 0), App.Vector(104, 4.25, 0)), False)
sketch7.addGeometry(Part.LineSegment(App.Vector(104, 4.25, 0), App.Vector(104, 90, 0)), False)
sketch7.addGeometry(Part.LineSegment(App.Vector(104, 90, 0), App.Vector(90, 90, 0)), False)
sketch7.addConstraint(Sketcher.Constraint("Coincident", 0, 2, 1, 1))
sketch7.addConstraint(Sketcher.Constraint("Coincident", 1, 2, 2, 1))
sketch7.addConstraint(Sketcher.Constraint("Coincident", 2, 2, 3, 1))
sketch7.addConstraint(Sketcher.Constraint("Coincident", 3, 2, 4, 1))
sketch7.addConstraint(Sketcher.Constraint("Coincident", 4, 2, 5, 1))
sketch7.addConstraint(Sketcher.Constraint("Coincident", 5, 2, 6, 1))
sketch7.addConstraint(Sketcher.Constraint("Coincident", 6, 2, 7, 1))
sketch7.addConstraint(Sketcher.Constraint("Coincident", 7, 2, 8, 1))
sketch7.addConstraint(Sketcher.Constraint("Coincident", 8, 2, 9, 1))
sketch7.addConstraint(Sketcher.Constraint("Coincident", 9, 2, 10, 1))
sketch7.addConstraint(Sketcher.Constraint("Coincident", 10, 2, 11, 1))
sketch7.addConstraint(Sketcher.Constraint("Coincident", 11, 2, 0, 1))
sketch7.addConstraint(Sketcher.Constraint("Vertical", 0))
sketch7.addConstraint(Sketcher.Constraint("Horizontal", 1))
sketch7.addConstraint(Sketcher.Constraint("Vertical", 2))
sketch7.addConstraint(Sketcher.Constraint("Horizontal", 3))
sketch7.addConstraint(Sketcher.Constraint("Vertical", 4))
sketch7.addConstraint(Sketcher.Constraint("Horizontal", 5))
sketch7.addConstraint(Sketcher.Constraint("Vertical", 6))
sketch7.addConstraint(Sketcher.Constraint("Horizontal", 7))
sketch7.addConstraint(Sketcher.Constraint("Vertical", 8))
sketch7.addConstraint(Sketcher.Constraint("Horizontal", 9))
sketch7.addConstraint(Sketcher.Constraint("Vertical", 10))
sketch7.addConstraint(Sketcher.Constraint("Horizontal", 11))
sketch7.addConstraint(Sketcher.Constraint("Symmetric", 4, 2, 7, 2, -1))
sketch7.addConstraint(Sketcher.Constraint("Symmetric", 2, 2, 9, 2, -1))
sketch7.addConstraint(Sketcher.Constraint("Horizontal", 1, 2, 4, 2))
sketch7.addConstraint(Sketcher.Constraint("Horizontal", 7, 2, 10, 2))
sketch7.addConstraint(Sketcher.Constraint("Equal", 1, 5))
sketch7.addConstraint(Sketcher.Constraint("DistanceX", 1, 1, 1, 2, Q("14 mm")))
sketch7.addConstraint(Sketcher.Constraint("DistanceX", 3, 1, 3, 2, Q("152 mm")))
sketch7.addConstraint(Sketcher.Constraint("DistanceY", 0, 2, 0, 1, Q("180 mm")))
sketch7.addConstraint(Sketcher.Constraint("DistanceX", -1, 1, 0, 2, Q("90 mm")))
sketch7.addConstraint(Sketcher.Constraint("DistanceY", 2, 1, 2, 2, Q("85.75 mm")))
pad6 = body2.newObject("PartDesign::Pad", "Pad005")
pad6.Profile = sketch7
pad6.Length = 2409
pad6.Reversed = True
body3 = doc.addObject("PartDesign::Body", "Body002")
body3.AllowCompound = True

# Sketch on XY plane
sketch8 = body3.newObject("Sketcher::SketchObject", "Sketch007")
sketch8.AttachmentSupport = (doc.getObject("XY_Plane002"), [""])
sketch8.MapMode = "FlatFace"
sketch8.addGeometry(Part.LineSegment(App.Vector(-970.25, 90, 0), App.Vector(-1110.25, 4, 0)), False)
sketch8.addGeometry(Part.LineSegment(App.Vector(-1110.25, 4, 0), App.Vector(-1110.25, -76, 0)), False)
sketch8.addGeometry(Part.LineSegment(App.Vector(-1110.25, -76, 0), App.Vector(-1030.25, -76, 0)), False)
sketch8.addGeometry(Part.LineSegment(App.Vector(-1030.25, -76, 0), App.Vector(-890.25, 10, 0)), False)
sketch8.addGeometry(Part.LineSegment(App.Vector(-890.25, 10, 0), App.Vector(-760.017442, 90, 0)), False)
sketch8.addGeometry(Part.LineSegment(App.Vector(-760.017442, 90, 0), App.Vector(-970.25, 90, 0)), False)
sketch8.addGeometry(Part.LineSegment(App.Vector(1110.25, -76, 0), App.Vector(1110.25, 4, 0)), False)
sketch8.addGeometry(Part.LineSegment(App.Vector(1110.25, 4, 0), App.Vector(970.25, 90, 0)), False)
sketch8.addGeometry(Part.LineSegment(App.Vector(970.25, 90, 0), App.Vector(760.017442, 90, 0)), False)
sketch8.addGeometry(Part.LineSegment(App.Vector(760.017442, 90, 0), App.Vector(890.25, 10, 0)), False)
sketch8.addGeometry(Part.LineSegment(App.Vector(890.25, 10, 0), App.Vector(1030.25, -76, 0)), False)
sketch8.addGeometry(Part.LineSegment(App.Vector(1030.25, -76, 0), App.Vector(1110.25, -76, 0)), False)
sketch8.addConstraint(Sketcher.Constraint("Coincident", 0, 2, 1, 1))
sketch8.addConstraint(Sketcher.Constraint("Coincident", 1, 2, 2, 1))
sketch8.addConstraint(Sketcher.Constraint("Coincident", 2, 2, 3, 1))
sketch8.addConstraint(Sketcher.Constraint("Coincident", 3, 2, 4, 1))
sketch8.addConstraint(Sketcher.Constraint("Coincident", 4, 2, 5, 1))
sketch8.addConstraint(Sketcher.Constraint("Coincident", 5, 2, 0, 1))
sketch8.addConstraint(Sketcher.Constraint("Coincident", 6, 2, 7, 1))
sketch8.addConstraint(Sketcher.Constraint("Coincident", 7, 2, 8, 1))
sketch8.addConstraint(Sketcher.Constraint("Coincident", 8, 2, 9, 1))
sketch8.addConstraint(Sketcher.Constraint("Coincident", 9, 2, 10, 1))
sketch8.addConstraint(Sketcher.Constraint("Coincident", 10, 2, 11, 1))
sketch8.addConstraint(Sketcher.Constraint("Coincident", 11, 2, 6, 1))
sketch8.addConstraint(Sketcher.Constraint("Vertical", 1))
sketch8.addConstraint(Sketcher.Constraint("Horizontal", 2))
sketch8.addConstraint(Sketcher.Constraint("Horizontal", 5))
sketch8.addConstraint(Sketcher.Constraint("Vertical", 6))
sketch8.addConstraint(Sketcher.Constraint("Horizontal", 8))
sketch8.addConstraint(Sketcher.Constraint("Horizontal", 11))
sketch8.addConstraint(Sketcher.Constraint("Symmetric", 0, 2, 6, 2, -2))
sketch8.addConstraint(Sketcher.Constraint("Symmetric", 5, 2, 7, 2, -2))
sketch8.addConstraint(Sketcher.Constraint("Symmetric", 3, 2, 9, 2, -2))
sketch8.addConstraint(Sketcher.Constraint("Symmetric", 2, 2, 10, 2, -2))
sketch8.addConstraint(Sketcher.Constraint("Parallel", 0, 3))
sketch8.addConstraint(Sketcher.Constraint("Parallel", 3, 4))
sketch8.addConstraint(Sketcher.Constraint("Parallel", 7, 9))
sketch8.addConstraint(Sketcher.Constraint("Equal", 11, 1))
sketch8.addConstraint(Sketcher.Constraint("Equal", 0, 3))
sketch8.addConstraint(Sketcher.Constraint("DistanceX", 2, 1, 2, 2, Q("80 mm")))
sketch8.addConstraint(Sketcher.Constraint("DistanceY", -1, 1, 0, 2, Q("4 mm")))
sketch8.addConstraint(Sketcher.Constraint("DistanceY", -1, 1, 3, 2, Q("10 mm")))
sketch8.addConstraint(Sketcher.Constraint("DistanceX", 2, 2, 3, 2, Q("140 mm")))
sketch8.addConstraint(Sketcher.Constraint("DistanceX", 3, 2, 6, 2, Q("2000.5 mm")))
pad7 = body3.newObject("PartDesign::Pad", "Pad006")
pad7.Profile = sketch8
pad7.Length = 80
pad7.Midplane = True

doc.recompute()
